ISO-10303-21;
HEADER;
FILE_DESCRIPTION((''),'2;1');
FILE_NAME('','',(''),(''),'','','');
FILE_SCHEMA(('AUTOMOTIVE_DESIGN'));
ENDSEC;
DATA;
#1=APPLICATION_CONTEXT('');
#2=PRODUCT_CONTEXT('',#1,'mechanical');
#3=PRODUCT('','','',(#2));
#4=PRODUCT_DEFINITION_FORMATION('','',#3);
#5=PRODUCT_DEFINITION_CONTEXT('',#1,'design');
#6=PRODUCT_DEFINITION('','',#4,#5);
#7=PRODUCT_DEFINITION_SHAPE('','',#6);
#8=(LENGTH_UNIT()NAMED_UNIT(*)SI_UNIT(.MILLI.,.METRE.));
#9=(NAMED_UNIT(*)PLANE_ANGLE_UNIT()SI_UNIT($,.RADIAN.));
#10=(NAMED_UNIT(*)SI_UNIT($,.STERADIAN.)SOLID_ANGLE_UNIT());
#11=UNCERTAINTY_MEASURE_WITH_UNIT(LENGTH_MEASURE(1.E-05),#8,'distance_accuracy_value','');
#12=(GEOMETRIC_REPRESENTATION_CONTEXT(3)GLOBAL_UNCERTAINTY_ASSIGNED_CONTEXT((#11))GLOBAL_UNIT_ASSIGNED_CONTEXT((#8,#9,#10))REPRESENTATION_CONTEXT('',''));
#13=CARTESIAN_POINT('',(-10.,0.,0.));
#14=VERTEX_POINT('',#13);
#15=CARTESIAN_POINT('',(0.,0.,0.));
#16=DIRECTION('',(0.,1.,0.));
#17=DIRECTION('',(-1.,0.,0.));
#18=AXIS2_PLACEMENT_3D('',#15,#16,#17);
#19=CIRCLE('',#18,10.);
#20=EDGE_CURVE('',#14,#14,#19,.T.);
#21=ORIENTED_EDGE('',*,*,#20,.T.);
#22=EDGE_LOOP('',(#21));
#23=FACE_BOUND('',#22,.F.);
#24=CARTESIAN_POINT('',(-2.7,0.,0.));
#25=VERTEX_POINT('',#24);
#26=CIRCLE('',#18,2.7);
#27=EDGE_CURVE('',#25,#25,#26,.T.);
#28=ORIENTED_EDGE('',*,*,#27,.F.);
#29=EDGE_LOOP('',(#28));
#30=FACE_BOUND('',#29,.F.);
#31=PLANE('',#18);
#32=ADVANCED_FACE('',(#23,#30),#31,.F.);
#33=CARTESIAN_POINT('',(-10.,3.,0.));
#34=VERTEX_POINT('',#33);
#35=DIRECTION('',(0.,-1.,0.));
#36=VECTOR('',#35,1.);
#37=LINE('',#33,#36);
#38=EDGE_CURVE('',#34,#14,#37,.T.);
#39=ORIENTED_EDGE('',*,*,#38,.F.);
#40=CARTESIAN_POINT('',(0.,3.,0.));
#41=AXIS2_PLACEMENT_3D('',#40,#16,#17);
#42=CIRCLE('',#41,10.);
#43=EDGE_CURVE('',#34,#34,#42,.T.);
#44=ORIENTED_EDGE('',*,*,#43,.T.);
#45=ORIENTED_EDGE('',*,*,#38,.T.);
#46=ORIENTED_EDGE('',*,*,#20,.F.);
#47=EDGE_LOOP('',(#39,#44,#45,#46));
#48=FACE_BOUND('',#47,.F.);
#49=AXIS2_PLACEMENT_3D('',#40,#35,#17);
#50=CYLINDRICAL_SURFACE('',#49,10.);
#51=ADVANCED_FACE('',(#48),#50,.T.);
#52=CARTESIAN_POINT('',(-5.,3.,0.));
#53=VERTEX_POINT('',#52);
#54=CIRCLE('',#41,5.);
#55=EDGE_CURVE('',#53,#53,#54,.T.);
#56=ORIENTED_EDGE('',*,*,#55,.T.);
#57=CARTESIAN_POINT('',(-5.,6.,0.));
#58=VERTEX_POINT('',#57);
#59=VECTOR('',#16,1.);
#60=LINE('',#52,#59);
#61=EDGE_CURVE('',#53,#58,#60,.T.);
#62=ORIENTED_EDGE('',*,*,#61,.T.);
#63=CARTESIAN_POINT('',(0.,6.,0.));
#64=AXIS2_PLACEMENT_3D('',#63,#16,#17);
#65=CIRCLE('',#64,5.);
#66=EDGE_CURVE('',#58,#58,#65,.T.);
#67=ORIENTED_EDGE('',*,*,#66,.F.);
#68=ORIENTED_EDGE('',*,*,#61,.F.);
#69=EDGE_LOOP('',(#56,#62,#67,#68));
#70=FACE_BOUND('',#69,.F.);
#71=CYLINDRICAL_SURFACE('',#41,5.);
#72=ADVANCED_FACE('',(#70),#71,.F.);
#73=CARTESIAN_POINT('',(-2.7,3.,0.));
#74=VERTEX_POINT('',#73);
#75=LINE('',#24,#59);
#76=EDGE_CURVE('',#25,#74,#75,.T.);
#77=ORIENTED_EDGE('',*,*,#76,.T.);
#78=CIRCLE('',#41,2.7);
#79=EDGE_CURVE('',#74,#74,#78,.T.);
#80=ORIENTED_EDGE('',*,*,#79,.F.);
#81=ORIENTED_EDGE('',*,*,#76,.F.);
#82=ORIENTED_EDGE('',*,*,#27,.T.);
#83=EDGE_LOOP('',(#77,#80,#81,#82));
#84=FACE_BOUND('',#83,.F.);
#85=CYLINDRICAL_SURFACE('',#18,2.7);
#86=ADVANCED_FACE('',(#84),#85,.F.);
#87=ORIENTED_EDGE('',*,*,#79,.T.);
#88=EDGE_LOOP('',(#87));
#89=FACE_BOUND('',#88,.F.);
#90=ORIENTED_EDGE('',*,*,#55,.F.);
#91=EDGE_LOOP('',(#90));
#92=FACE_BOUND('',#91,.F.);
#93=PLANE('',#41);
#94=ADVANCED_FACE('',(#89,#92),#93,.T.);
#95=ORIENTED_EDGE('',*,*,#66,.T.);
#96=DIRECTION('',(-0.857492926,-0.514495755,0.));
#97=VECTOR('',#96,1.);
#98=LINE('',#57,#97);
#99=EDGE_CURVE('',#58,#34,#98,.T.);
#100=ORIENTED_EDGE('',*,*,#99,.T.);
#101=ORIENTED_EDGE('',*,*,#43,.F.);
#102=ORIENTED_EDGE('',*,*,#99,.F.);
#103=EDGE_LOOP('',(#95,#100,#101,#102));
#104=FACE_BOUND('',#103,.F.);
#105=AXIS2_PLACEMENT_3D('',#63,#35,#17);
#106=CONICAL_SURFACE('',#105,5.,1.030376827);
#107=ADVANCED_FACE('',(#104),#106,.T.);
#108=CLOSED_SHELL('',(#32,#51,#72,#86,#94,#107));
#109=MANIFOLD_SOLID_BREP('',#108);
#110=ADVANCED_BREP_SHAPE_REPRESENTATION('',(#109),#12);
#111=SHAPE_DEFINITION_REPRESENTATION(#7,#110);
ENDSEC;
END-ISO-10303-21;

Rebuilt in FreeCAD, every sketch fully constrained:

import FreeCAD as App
import Part
import Sketcher

V = App.Vector


def add_polygon(sketch, points):
    """Adds a closed chain of lines whose ends are joined by coincident constraints."""
    first, n = sketch.GeometryCount, len(points)
    for a, b in zip(points, points[1:] + points[:1]):
        sketch.addGeometry(Part.LineSegment(App.Vector(*a, 0), App.Vector(*b, 0)), False)
    for i in range(n):
        sketch.addConstraint(Sketcher.Constraint("Coincident", first + i, 2, first + (i + 1) % n, 1))

doc = App.newDocument("Part")
body = doc.addObject("PartDesign::Body", "Body")

sketch1 = doc.addObject("Sketcher::SketchObject", "Sketch")
body.addObject(sketch1)
sketch1.AttachmentSupport = (doc.XY_Plane, [""])
sketch1.MapMode = "FlatFace"
add_polygon(sketch1, [(-10, 3), (-10, 0), (-2.7, 0), (-2.7, 3), (-5, 3), (-5, 6)])
sketch1.addConstraint([
    Sketcher.Constraint("Vertical", 0),
    Sketcher.Constraint("Horizontal", 1),
    Sketcher.Constraint("Vertical", 2),
    Sketcher.Constraint("Horizontal", 3),
    Sketcher.Constraint("Vertical", 4),
    Sketcher.Constraint("PointOnObject", 0, 2, -1),
    Sketcher.Constraint("Horizontal", 3, 2, 5, 2),
    Sketcher.Constraint("Equal", 2, 4),
    Sketcher.Constraint("DistanceY", 0, 2, 0, 1, 3.0),
    Sketcher.Constraint("DistanceX", 1, 1, 1, 2, 7.3),
    Sketcher.Constraint("DistanceX", 3, 2, 3, 1, 2.3),
    Sketcher.Constraint("DistanceX", 0, 2, -1, 1, 10.0),
])
revolution = doc.addObject("PartDesign::Revolution", "Revolution")
body.addObject(revolution)
revolution.Profile = sketch1
revolution.ReferenceAxis = (sketch1, ["V_Axis"])
revolution.Angle = 360

doc.recompute()
